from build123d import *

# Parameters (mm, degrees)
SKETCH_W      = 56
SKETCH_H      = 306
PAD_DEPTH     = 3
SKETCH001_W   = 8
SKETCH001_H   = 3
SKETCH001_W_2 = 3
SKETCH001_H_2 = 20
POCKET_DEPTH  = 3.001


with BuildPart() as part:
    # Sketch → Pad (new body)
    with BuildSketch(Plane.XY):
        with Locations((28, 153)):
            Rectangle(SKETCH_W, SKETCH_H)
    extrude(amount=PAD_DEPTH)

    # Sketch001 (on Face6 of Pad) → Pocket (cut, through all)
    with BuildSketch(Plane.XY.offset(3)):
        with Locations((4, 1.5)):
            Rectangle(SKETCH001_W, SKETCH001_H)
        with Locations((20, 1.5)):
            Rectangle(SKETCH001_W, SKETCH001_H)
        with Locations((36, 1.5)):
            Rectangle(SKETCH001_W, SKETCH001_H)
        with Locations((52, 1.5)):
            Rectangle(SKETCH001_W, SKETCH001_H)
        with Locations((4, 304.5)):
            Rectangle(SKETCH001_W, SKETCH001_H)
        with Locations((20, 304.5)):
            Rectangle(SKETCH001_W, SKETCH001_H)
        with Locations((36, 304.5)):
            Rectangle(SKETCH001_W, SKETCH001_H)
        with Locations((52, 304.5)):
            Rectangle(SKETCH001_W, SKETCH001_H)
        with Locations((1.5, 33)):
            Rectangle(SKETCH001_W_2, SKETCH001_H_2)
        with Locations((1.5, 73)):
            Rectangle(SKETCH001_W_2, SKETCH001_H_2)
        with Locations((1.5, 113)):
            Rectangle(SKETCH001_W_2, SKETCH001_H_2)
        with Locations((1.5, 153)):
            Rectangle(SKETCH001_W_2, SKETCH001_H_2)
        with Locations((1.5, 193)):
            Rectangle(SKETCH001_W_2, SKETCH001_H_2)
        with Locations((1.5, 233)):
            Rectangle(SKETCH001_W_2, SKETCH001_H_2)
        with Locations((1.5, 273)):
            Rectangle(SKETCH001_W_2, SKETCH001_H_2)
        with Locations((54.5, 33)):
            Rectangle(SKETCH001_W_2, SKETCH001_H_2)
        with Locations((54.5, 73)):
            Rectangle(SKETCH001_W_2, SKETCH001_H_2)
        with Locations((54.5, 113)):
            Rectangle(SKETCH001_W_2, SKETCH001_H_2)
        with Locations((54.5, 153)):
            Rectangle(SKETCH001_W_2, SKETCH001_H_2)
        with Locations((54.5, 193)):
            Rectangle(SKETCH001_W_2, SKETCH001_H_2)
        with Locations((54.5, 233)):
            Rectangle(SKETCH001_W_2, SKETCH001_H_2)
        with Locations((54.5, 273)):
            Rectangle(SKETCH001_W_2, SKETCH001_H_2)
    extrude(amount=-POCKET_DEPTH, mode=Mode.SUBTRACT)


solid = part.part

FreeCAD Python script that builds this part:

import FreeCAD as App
import Part
import Sketcher
Q = App.Units.Quantity

doc = App.newDocument("Part")
body = doc.addObject("PartDesign::Body", "Body")

# Sketch on XY plane
sketch1 = body.newObject("Sketcher::SketchObject", "Sketch")
sketch1.AttachmentSupport = (doc.getObject("XY_Plane"), [""])
sketch1.MapMode = "FlatFace"
sketch1.addGeometry([
    Part.LineSegment(App.Vector(0, 306, 0), App.Vector(0, 0, 0)),
    Part.LineSegment(App.Vector(0, 0, 0), App.Vector(56, 0, 0)),
    Part.LineSegment(App.Vector(56, 0, 0), App.Vector(56, 306, 0)),
    Part.LineSegment(App.Vector(56, 306, 0), App.Vector(0, 306, 0)),
], False)
sketch1.addConstraint([
    Sketcher.Constraint("Coincident", 0, 2, 1, 1),
    Sketcher.Constraint("Coincident", 1, 2, 2, 1),
    Sketcher.Constraint("Coincident", 2, 2, 3, 1),
    Sketcher.Constraint("Coincident", 3, 2, 0, 1),
    Sketcher.Constraint("Vertical", 0),
    Sketcher.Constraint("Horizontal", 1),
    Sketcher.Constraint("Vertical", 2),
    Sketcher.Constraint("Horizontal", 3),
    Sketcher.Constraint("Coincident", 0, 2, -1, 1),
    Sketcher.Constraint("DistanceX", 1, 1, 1, 2, Q("56 mm")),
    Sketcher.Constraint("DistanceY", 0, 2, 0, 1, Q("306 mm")),
])
pad1 = body.newObject("PartDesign::Pad", "Pad")
pad1.Profile = sketch1
pad1.Length = 3

# Sketch on XY plane
sketch2 = body.newObject("Sketcher::SketchObject", "Sketch001")
sketch2.AttachmentSupport = (doc.getObject("XY_Plane"), [""])
sketch2.MapMode = "FlatFace"
sketch2.AttachmentOffset = App.Placement(App.Vector(0, 0, 3), App.Rotation())
sketch2.addGeometry([
    Part.LineSegment(App.Vector(0, 3, 0), App.Vector(0, 0, 0)),  # 0
    Part.LineSegment(App.Vector(0, 0, 0), App.Vector(8, 0, 0)),  # 1
    Part.LineSegment(App.Vector(8, 0, 0), App.Vector(8, 3, 0)),  # 2
    Part.LineSegment(App.Vector(8, 3, 0), App.Vector(0, 3, 0)),  # 3
    Part.LineSegment(App.Vector(16, 3, 0), App.Vector(16, 0, 0)),  # 4
    Part.LineSegment(App.Vector(16, 0, 0), App.Vector(24, 0, 0)),  # 5
    Part.LineSegment(App.Vector(24, 0, 0), App.Vector(24, 3, 0)),  # 6
    Part.LineSegment(App.Vector(24, 3, 0), App.Vector(16, 3, 0)),  # 7
    Part.LineSegment(App.Vector(32, 3, 0), App.Vector(32, 0, 0)),  # 8
    Part.LineSegment(App.Vector(32, 0, 0), App.Vector(40, 0, 0)),  # 9
    Part.LineSegment(App.Vector(40, 0, 0), App.Vector(40, 3, 0)),  # 10
    Part.LineSegment(App.Vector(40, 3, 0), App.Vector(32, 3, 0)),  # 11
    Part.LineSegment(App.Vector(48, 3, 0), App.Vector(48, 0, 0)),  # 12
    Part.LineSegment(App.Vector(48, 0, 0), App.Vector(56, 0, 0)),  # 13
    Part.LineSegment(App.Vector(56, 0, 0), App.Vector(56, 3, 0)),  # 14
    Part.LineSegment(App.Vector(56, 3, 0), App.Vector(48, 3, 0)),  # 15
    Part.LineSegment(App.Vector(0, 306, 0), App.Vector(0, 303, 0)),  # 16
    Part.LineSegment(App.Vector(0, 303, 0), App.Vector(8, 303, 0)),  # 17
    Part.LineSegment(App.Vector(8, 303, 0), App.Vector(8, 306, 0)),  # 18
    Part.LineSegment(App.Vector(8, 306, 0), App.Vector(0, 306, 0)),  # 19
    Part.LineSegment(App.Vector(16, 306, 0), App.Vector(16, 303, 0)),  # 20
    Part.LineSegment(App.Vector(16, 303, 0), App.Vector(24, 303, 0)),  # 21
    Part.LineSegment(App.Vector(24, 303, 0), App.Vector(24, 306, 0)),  # 22
    Part.LineSegment(App.Vector(24, 306, 0), App.Vector(16, 306, 0)),  # 23
    Part.LineSegment(App.Vector(32, 306, 0), App.Vector(32, 303, 0)),  # 24
    Part.LineSegment(App.Vector(32, 303, 0), App.Vector(40, 303, 0)),  # 25
    Part.LineSegment(App.Vector(40, 303, 0), App.Vector(40, 306, 0)),  # 26
    Part.LineSegment(App.Vector(40, 306, 0), App.Vector(32, 306, 0)),  # 27
    Part.LineSegment(App.Vector(48, 306, 0), App.Vector(48, 303, 0)),  # 28
    Part.LineSegment(App.Vector(48, 303, 0), App.Vector(56, 303, 0)),  # 29
    Part.LineSegment(App.Vector(56, 303, 0), App.Vector(56, 306, 0)),  # 30
    Part.LineSegment(App.Vector(56, 306, 0), App.Vector(48, 306, 0)),  # 31
    Part.LineSegment(App.Vector(0, 43, 0), App.Vector(0, 23, 0)),  # 32
    Part.LineSegment(App.Vector(0, 23, 0), App.Vector(3, 23, 0)),  # 33
    Part.LineSegment(App.Vector(3, 23, 0), App.Vector(3, 43, 0)),  # 34
    Part.LineSegment(App.Vector(3, 43, 0), App.Vector(0, 43, 0)),  # 35
    Part.LineSegment(App.Vector(0, 83, 0), App.Vector(0, 63, 0)),  # 36
    Part.LineSegment(App.Vector(0, 63, 0), App.Vector(3, 63, 0)),  # 37
    Part.LineSegment(App.Vector(3, 63, 0), App.Vector(3, 83, 0)),  # 38
    Part.LineSegment(App.Vector(3, 83, 0), App.Vector(0, 83, 0)),  # 39
    Part.LineSegment(App.Vector(0, 123, 0), App.Vector(0, 103, 0)),  # 40
    Part.LineSegment(App.Vector(0, 103, 0), App.Vector(3, 103, 0)),  # 41
    Part.LineSegment(App.Vector(3, 103, 0), App.Vector(3, 123, 0)),  # 42
    Part.LineSegment(App.Vector(3, 123, 0), App.Vector(0, 123, 0)),  # 43
    Part.LineSegment(App.Vector(0, 163, 0), App.Vector(0, 143, 0)),  # 44
    Part.LineSegment(App.Vector(0, 143, 0), App.Vector(3, 143, 0)),  # 45
    Part.LineSegment(App.Vector(3, 143, 0), App.Vector(3, 163, 0)),  # 46
    Part.LineSegment(App.Vector(3, 163, 0), App.Vector(0, 163, 0)),  # 47
    Part.LineSegment(App.Vector(0, 203, 0), App.Vector(0, 183, 0)),  # 48
    Part.LineSegment(App.Vector(0, 183, 0), App.Vector(3, 183, 0)),  # 49
    Part.LineSegment(App.Vector(3, 183, 0), App.Vector(3, 203, 0)),  # 50
    Part.LineSegment(App.Vector(3, 203, 0), App.Vector(0, 203, 0)),  # 51
    Part.LineSegment(App.Vector(0, 243, 0), App.Vector(0, 223, 0)),  # 52
    Part.LineSegment(App.Vector(0, 223, 0), App.Vector(3, 223, 0)),  # 53
    Part.LineSegment(App.Vector(3, 223, 0), App.Vector(3, 243, 0)),  # 54
    Part.LineSegment(App.Vector(3, 243, 0), App.Vector(0, 243, 0)),  # 55
    Part.LineSegment(App.Vector(0, 283, 0), App.Vector(0, 263, 0)),  # 56
    Part.LineSegment(App.Vector(0, 263, 0), App.Vector(3, 263, 0)),  # 57
    Part.LineSegment(App.Vector(3, 263, 0), App.Vector(3, 283, 0)),  # 58
    Part.LineSegment(App.Vector(3, 283, 0), App.Vector(0, 283, 0)),  # 59
    Part.LineSegment(App.Vector(53, 43, 0), App.Vector(53, 23, 0)),  # 60
    Part.LineSegment(App.Vector(53, 23, 0), App.Vector(56, 23, 0)),  # 61
    Part.LineSegment(App.Vector(56, 23, 0), App.Vector(56, 43, 0)),  # 62
    Part.LineSegment(App.Vector(56, 43, 0), App.Vector(53, 43, 0)),  # 63
    Part.LineSegment(App.Vector(53, 83, 0), App.Vector(53, 63, 0)),  # 64
    Part.LineSegment(App.Vector(53, 63, 0), App.Vector(56, 63, 0)),  # 65
    Part.LineSegment(App.Vector(56, 63, 0), App.Vector(56, 83, 0)),  # 66
    Part.LineSegment(App.Vector(56, 83, 0), App.Vector(53, 83, 0)),  # 67
    Part.LineSegment(App.Vector(53, 123, 0), App.Vector(53, 103, 0)),  # 68
    Part.LineSegment(App.Vector(53, 103, 0), App.Vector(56, 103, 0)),  # 69
    Part.LineSegment(App.Vector(56, 103, 0), App.Vector(56, 123, 0)),  # 70
    Part.LineSegment(App.Vector(56, 123, 0), App.Vector(53, 123, 0)),  # 71
    Part.LineSegment(App.Vector(53, 163, 0), App.Vector(53, 143, 0)),  # 72
    Part.LineSegment(App.Vector(53, 143, 0), App.Vector(56, 143, 0)),  # 73
    Part.LineSegment(App.Vector(56, 143, 0), App.Vector(56, 163, 0)),  # 74
    Part.LineSegment(App.Vector(56, 163, 0), App.Vector(53, 163, 0)),  # 75
    Part.LineSegment(App.Vector(53, 203, 0), App.Vector(53, 183, 0)),  # 76
    Part.LineSegment(App.Vector(53, 183, 0), App.Vector(56, 183, 0)),  # 77
    Part.LineSegment(App.Vector(56, 183, 0), App.Vector(56, 203, 0)),  # 78
    Part.LineSegment(App.Vector(56, 203, 0), App.Vector(53, 203, 0)),  # 79
    Part.LineSegment(App.Vector(53, 243, 0), App.Vector(53, 223, 0)),  # 80
    Part.LineSegment(App.Vector(53, 223, 0), App.Vector(56, 223, 0)),  # 81
    Part.LineSegment(App.Vector(56, 223, 0), App.Vector(56, 243, 0)),  # 82
    Part.LineSegment(App.Vector(56, 243, 0), App.Vector(53, 243, 0)),  # 83
    Part.LineSegment(App.Vector(53, 283, 0), App.Vector(53, 263, 0)),  # 84
    Part.LineSegment(App.Vector(53, 263, 0), App.Vector(56, 263, 0)),  # 85
    Part.LineSegment(App.Vector(56, 263, 0), App.Vector(56, 283, 0)),  # 86
    Part.LineSegment(App.Vector(56, 283, 0), App.Vector(53, 283, 0)),  # 87
], False)
sketch2.addConstraint([
    Sketcher.Constraint("Coincident", 0, 2, 1, 1),
    Sketcher.Constraint("Coincident", 1, 2, 2, 1),
    Sketcher.Constraint("Coincident", 2, 2, 3, 1),
    Sketcher.Constraint("Coincident", 3, 2, 0, 1),
    Sketcher.Constraint("Coincident", 4, 2, 5, 1),
    Sketcher.Constraint("Coincident", 5, 2, 6, 1),
    Sketcher.Constraint("Coincident", 6, 2, 7, 1),
    Sketcher.Constraint("Coincident", 7, 2, 4, 1),
    Sketcher.Constraint("Coincident", 8, 2, 9, 1),
    Sketcher.Constraint("Coincident", 9, 2, 10, 1),
    Sketcher.Constraint("Coincident", 10, 2, 11, 1),
    Sketcher.Constraint("Coincident", 11, 2, 8, 1),
    Sketcher.Constraint("Coincident", 12, 2, 13, 1),
    Sketcher.Constraint("Coincident", 13, 2, 14, 1),
    Sketcher.Constraint("Coincident", 14, 2, 15, 1),
    Sketcher.Constraint("Coincident", 15, 2, 12, 1),
    Sketcher.Constraint("Coincident", 16, 2, 17, 1),
    Sketcher.Constraint("Coincident", 17, 2, 18, 1),
    Sketcher.Constraint("Coincident", 18, 2, 19, 1),
    Sketcher.Constraint("Coincident", 19, 2, 16, 1),
    Sketcher.Constraint("Coincident", 20, 2, 21, 1),
    Sketcher.Constraint("Coincident", 21, 2, 22, 1),
    Sketcher.Constraint("Coincident", 22, 2, 23, 1),
    Sketcher.Constraint("Coincident", 23, 2, 20, 1),
    Sketcher.Constraint("Coincident", 24, 2, 25, 1),
    Sketcher.Constraint("Coincident", 25, 2, 26, 1),
    Sketcher.Constraint("Coincident", 26, 2, 27, 1),
    Sketcher.Constraint("Coincident", 27, 2, 24, 1),
    Sketcher.Constraint("Coincident", 28, 2, 29, 1),
    Sketcher.Constraint("Coincident", 29, 2, 30, 1),
    Sketcher.Constraint("Coincident", 30, 2, 31, 1),
    Sketcher.Constraint("Coincident", 31, 2, 28, 1),
    Sketcher.Constraint("Coincident", 32, 2, 33, 1),
    Sketcher.Constraint("Coincident", 33, 2, 34, 1),
    Sketcher.Constraint("Coincident", 34, 2, 35, 1),
    Sketcher.Constraint("Coincident", 35, 2, 32, 1),
    Sketcher.Constraint("Coincident", 36, 2, 37, 1),
    Sketcher.Constraint("Coincident", 37, 2, 38, 1),
    Sketcher.Constraint("Coincident", 38, 2, 39, 1),
    Sketcher.Constraint("Coincident", 39, 2, 36, 1),
    Sketcher.Constraint("Coincident", 40, 2, 41, 1),
    Sketcher.Constraint("Coincident", 41, 2, 42, 1),
    Sketcher.Constraint("Coincident", 42, 2, 43, 1),
    Sketcher.Constraint("Coincident", 43, 2, 40, 1),
    Sketcher.Constraint("Coincident", 44, 2, 45, 1),
    Sketcher.Constraint("Coincident", 45, 2, 46, 1),
    Sketcher.Constraint("Coincident", 46, 2, 47, 1),
    Sketcher.Constraint("Coincident", 47, 2, 44, 1),
    Sketcher.Constraint("Coincident", 48, 2, 49, 1),
    Sketcher.Constraint("Coincident", 49, 2, 50, 1),
    Sketcher.Constraint("Coincident", 50, 2, 51, 1),
    Sketcher.Constraint("Coincident", 51, 2, 48, 1),
    Sketcher.Constraint("Coincident", 52, 2, 53, 1),
    Sketcher.Constraint("Coincident", 53, 2, 54, 1),
    Sketcher.Constraint("Coincident", 54, 2, 55, 1),
    Sketcher.Constraint("Coincident", 55, 2, 52, 1),
    Sketcher.Constraint("Coincident", 56, 2, 57, 1),
    Sketcher.Constraint("Coincident", 57, 2, 58, 1),
    Sketcher.Constraint("Coincident", 58, 2, 59, 1),
    Sketcher.Constraint("Coincident", 59, 2, 56, 1),
    Sketcher.Constraint("Coincident", 60, 2, 61, 1),
    Sketcher.Constraint("Coincident", 61, 2, 62, 1),
    Sketcher.Constraint("Coincident", 62, 2, 63, 1),
    Sketcher.Constraint("Coincident", 63, 2, 60, 1),
    Sketcher.Constraint("Coincident", 64, 2, 65, 1),
    Sketcher.Constraint("Coincident", 65, 2, 66, 1),
    Sketcher.Constraint("Coincident", 66, 2, 67, 1),
    Sketcher.Constraint("Coincident", 67, 2, 64, 1),
    Sketcher.Constraint("Coincident", 68, 2, 69, 1),
    Sketcher.Constraint("Coincident", 69, 2, 70, 1),
    Sketcher.Constraint("Coincident", 70, 2, 71, 1),
    Sketcher.Constraint("Coincident", 71, 2, 68, 1),
    Sketcher.Constraint("Coincident", 72, 2, 73, 1),
    Sketcher.Constraint("Coincident", 73, 2, 74, 1),
    Sketcher.Constraint("Coincident", 74, 2, 75, 1),
    Sketcher.Constraint("Coincident", 75, 2, 72, 1),
    Sketcher.Constraint("Coincident", 76, 2, 77, 1),
    Sketcher.Constraint("Coincident", 77, 2, 78, 1),
    Sketcher.Constraint("Coincident", 78, 2, 79, 1),
    Sketcher.Constraint("Coincident", 79, 2, 76, 1),
    Sketcher.Constraint("Coincident", 80, 2, 81, 1),
    Sketcher.Constraint("Coincident", 81, 2, 82, 1),
    Sketcher.Constraint("Coincident", 82, 2, 83, 1),
    Sketcher.Constraint("Coincident", 83, 2, 80, 1),
    Sketcher.Constraint("Coincident", 84, 2, 85, 1),
    Sketcher.Constraint("Coincident", 85, 2, 86, 1),
    Sketcher.Constraint("Coincident", 86, 2, 87, 1),
    Sketcher.Constraint("Coincident", 87, 2, 84, 1),
    Sketcher.Constraint("Vertical", 0),
    Sketcher.Constraint("Horizontal", 1),
    Sketcher.Constraint("Vertical", 2),
    Sketcher.Constraint("Horizontal", 3),
    Sketcher.Constraint("Vertical", 4),
    Sketcher.Constraint("Horizontal", 5),
    Sketcher.Constraint("Vertical", 6),
    Sketcher.Constraint("Horizontal", 7),
    Sketcher.Constraint("Vertical", 8),
    Sketcher.Constraint("Horizontal", 9),
    Sketcher.Constraint("Vertical", 10),
    Sketcher.Constraint("Horizontal", 11),
    Sketcher.Constraint("Vertical", 12),
    Sketcher.Constraint("Horizontal", 13),
    Sketcher.Constraint("Vertical", 14),
    Sketcher.Constraint("Horizontal", 15),
    Sketcher.Constraint("Vertical", 16),
    Sketcher.Constraint("Horizontal", 17),
    Sketcher.Constraint("Vertical", 18),
    Sketcher.Constraint("Horizontal", 19),
    Sketcher.Constraint("Vertical", 20),
    Sketcher.Constraint("Horizontal", 21),
    Sketcher.Constraint("Vertical", 22),
    Sketcher.Constraint("Horizontal", 23),
    Sketcher.Constraint("Vertical", 24),
    Sketcher.Constraint("Horizontal", 25),
    Sketcher.Constraint("Vertical", 26),
    Sketcher.Constraint("Horizontal", 27),
    Sketcher.Constraint("Vertical", 28),
    Sketcher.Constraint("Horizontal", 29),
    Sketcher.Constraint("Vertical", 30),
    Sketcher.Constraint("Horizontal", 31),
    Sketcher.Constraint("Vertical", 32),
    Sketcher.Constraint("Horizontal", 33),
    Sketcher.Constraint("Vertical", 34),
    Sketcher.Constraint("Horizontal", 35),
    Sketcher.Constraint("Vertical", 36),
    Sketcher.Constraint("Horizontal", 37),
    Sketcher.Constraint("Vertical", 38),
    Sketcher.Constraint("Horizontal", 39),
    Sketcher.Constraint("Vertical", 40),
    Sketcher.Constraint("Horizontal", 41),
    Sketcher.Constraint("Vertical", 42),
    Sketcher.Constraint("Horizontal", 43),
    Sketcher.Constraint("Vertical", 44),
    Sketcher.Constraint("Horizontal", 45),
    Sketcher.Constraint("Vertical", 46),
    Sketcher.Constraint("Horizontal", 47),
    Sketcher.Constraint("Vertical", 48),
    Sketcher.Constraint("Horizontal", 49),
    Sketcher.Constraint("Vertical", 50),
    Sketcher.Constraint("Horizontal", 51),
    Sketcher.Constraint("Vertical", 52),
    Sketcher.Constraint("Horizontal", 53),
    Sketcher.Constraint("Vertical", 54),
    Sketcher.Constraint("Horizontal", 55),
    Sketcher.Constraint("Vertical", 56),
    Sketcher.Constraint("Horizontal", 57),
    Sketcher.Constraint("Vertical", 58),
    Sketcher.Constraint("Horizontal", 59),
    Sketcher.Constraint("Vertical", 60),
    Sketcher.Constraint("Horizontal", 61),
    Sketcher.Constraint("Vertical", 62),
    Sketcher.Constraint("Horizontal", 63),
    Sketcher.Constraint("Vertical", 64),
    Sketcher.Constraint("Horizontal", 65),
    Sketcher.Constraint("Vertical", 66),
    Sketcher.Constraint("Horizontal", 67),
    Sketcher.Constraint("Vertical", 68),
    Sketcher.Constraint("Horizontal", 69),
    Sketcher.Constraint("Vertical", 70),
    Sketcher.Constraint("Horizontal", 71),
    Sketcher.Constraint("Vertical", 72),
    Sketcher.Constraint("Horizontal", 73),
    Sketcher.Constraint("Vertical", 74),
    Sketcher.Constraint("Horizontal", 75),
    Sketcher.Constraint("Vertical", 76),
    Sketcher.Constraint("Horizontal", 77),
    Sketcher.Constraint("Vertical", 78),
    Sketcher.Constraint("Horizontal", 79),
    Sketcher.Constraint("Vertical", 80),
    Sketcher.Constraint("Horizontal", 81),
    Sketcher.Constraint("Vertical", 82),
    Sketcher.Constraint("Horizontal", 83),
    Sketcher.Constraint("Vertical", 84),
    Sketcher.Constraint("Horizontal", 85),
    Sketcher.Constraint("Vertical", 86),
    Sketcher.Constraint("Horizontal", 87),
    Sketcher.Constraint("Coincident", 0, 2, -1, 1),
    Sketcher.Constraint("PointOnObject", 4, 2, -1),
    Sketcher.Constraint("PointOnObject", 8, 2, -1),
    Sketcher.Constraint("PointOnObject", 12, 2, -1),
    Sketcher.Constraint("PointOnObject", 16, 2, -2),
    Sketcher.Constraint("PointOnObject", 32, 2, -2),
    Sketcher.Constraint("PointOnObject", 36, 2, -2),
    Sketcher.Constraint("PointOnObject", 40, 2, -2),
    Sketcher.Constraint("PointOnObject", 44, 2, -2),
    Sketcher.Constraint("PointOnObject", 48, 2, -2),
    Sketcher.Constraint("PointOnObject", 52, 2, -2),
    Sketcher.Constraint("PointOnObject", 56, 2, -2),
    Sketcher.Constraint("Horizontal", 3, 2, 6, 2),
    Sketcher.Constraint("Horizontal", 7, 2, 10, 2),
    Sketcher.Constraint("Horizontal", 11, 2, 14, 2),
    Sketcher.Constraint("Horizontal", 17, 2, 20, 2),
    Sketcher.Constraint("Horizontal", 19, 2, 22, 2),
    Sketcher.Constraint("Horizontal", 21, 2, 24, 2),
    Sketcher.Constraint("Horizontal", 23, 2, 26, 2),
    Sketcher.Constraint("Horizontal", 25, 2, 28, 2),
    Sketcher.Constraint("Horizontal", 27, 2, 30, 2),
    Sketcher.Constraint("Horizontal", 33, 2, 60, 2),
    Sketcher.Constraint("Horizontal", 35, 2, 62, 2),
    Sketcher.Constraint("Horizontal", 37, 2, 64, 2),
    Sketcher.Constraint("Horizontal", 39, 2, 66, 2),
    Sketcher.Constraint("Horizontal", 41, 2, 68, 2),
    Sketcher.Constraint("Horizontal", 43, 2, 70, 2),
    Sketcher.Constraint("Horizontal", 45, 2, 72, 2),
    Sketcher.Constraint("Horizontal", 47, 2, 74, 2),
    Sketcher.Constraint("Horizontal", 49, 2, 76, 2),
    Sketcher.Constraint("Horizontal", 51, 2, 78, 2),
    Sketcher.Constraint("Horizontal", 53, 2, 80, 2),
    Sketcher.Constraint("Horizontal", 55, 2, 82, 2),
    Sketcher.Constraint("Horizontal", 57, 2, 84, 2),
    Sketcher.Constraint("Horizontal", 59, 2, 86, 2),
    Sketcher.Constraint("Vertical", 2, 2, 17, 2),
    Sketcher.Constraint("Vertical", 7, 2, 20, 2),
    Sketcher.Constraint("Vertical", 6, 2, 21, 2),
    Sketcher.Constraint("Vertical", 11, 2, 24, 2),
    Sketcher.Constraint("Vertical", 10, 2, 25, 2),
    Sketcher.Constraint("Vertical", 15, 2, 28, 2),
    Sketcher.Constraint("Vertical", 14, 2, 29, 2),
    Sketcher.Constraint("Vertical", 34, 2, 37, 2),
    Sketcher.Constraint("Vertical", 38, 2, 41, 2),
    Sketcher.Constraint("Vertical", 42, 2, 45, 2),
    Sketcher.Constraint("Vertical", 46, 2, 49, 2),
    Sketcher.Constraint("Vertical", 50, 2, 53, 2),
    Sketcher.Constraint("Vertical", 54, 2, 57, 2),
    Sketcher.Constraint("Vertical", 30, 2, 61, 2),
    Sketcher.Constraint("Vertical", 63, 2, 64, 2),
    Sketcher.Constraint("Vertical", 62, 2, 65, 2),
    Sketcher.Constraint("Vertical", 67, 2, 68, 2),
    Sketcher.Constraint("Vertical", 66, 2, 69, 2),
    Sketcher.Constraint("Vertical", 71, 2, 72, 2),
    Sketcher.Constraint("Vertical", 70, 2, 73, 2),
    Sketcher.Constraint("Vertical", 75, 2, 76, 2),
    Sketcher.Constraint("Vertical", 74, 2, 77, 2),
    Sketcher.Constraint("Vertical", 79, 2, 80, 2),
    Sketcher.Constraint("Vertical", 78, 2, 81, 2),
    Sketcher.Constraint("Vertical", 83, 2, 84, 2),
    Sketcher.Constraint("Vertical", 82, 2, 85, 2),
    Sketcher.Constraint("Equal", 3, 5),
    Sketcher.Constraint("Equal", 7, 9),
    Sketcher.Constraint("Equal", 11, 13),
    Sketcher.Constraint("Equal", 59, 61),
    Sketcher.Constraint("Equal", 87, 0),
    Sketcher.Constraint("Equal", 14, 16),
    Sketcher.Constraint("Equal", 34, 36),
    Sketcher.Constraint("Equal", 38, 40),
    Sketcher.Constraint("Equal", 42, 44),
    Sketcher.Constraint("Equal", 46, 48),
    Sketcher.Constraint("Equal", 50, 52),
    Sketcher.Constraint("Equal", 54, 56),
    Sketcher.Constraint("DistanceX", 1, 1, 1, 2, Q("8 mm")),
    Sketcher.Constraint("DistanceX", 33, 1, 33, 2, Q("3 mm")),
    Sketcher.Constraint("DistanceY", 32, 2, 32, 1, Q("20 mm")),
    Sketcher.Constraint("DistanceX", -1, 1, 4, 2, Q("16 mm")),
    Sketcher.Constraint("DistanceX", -1, 1, 8, 2, Q("32 mm")),
    Sketcher.Constraint("DistanceX", -1, 1, 12, 2, Q("48 mm")),
    Sketcher.Constraint("DistanceY", -1, 1, 16, 2, Q("303 mm")),
    Sketcher.Constraint("DistanceY", -1, 1, 32, 2, Q("23 mm")),
    Sketcher.Constraint("DistanceY", -1, 1, 36, 2, Q("63 mm")),
    Sketcher.Constraint("DistanceY", -1, 1, 40, 2, Q("103 mm")),
    Sketcher.Constraint("DistanceY", -1, 1, 44, 2, Q("143 mm")),
    Sketcher.Constraint("DistanceY", -1, 1, 48, 2, Q("183 mm")),
    Sketcher.Constraint("DistanceY", -1, 1, 52, 2, Q("223 mm")),
    Sketcher.Constraint("DistanceY", -1, 1, 56, 2, Q("263 mm")),
])
pocket1 = body.newObject("PartDesign::Pocket", "Pocket")
pocket1.Profile = sketch2
pocket1.Type = "ThroughAll"

doc.recompute()
